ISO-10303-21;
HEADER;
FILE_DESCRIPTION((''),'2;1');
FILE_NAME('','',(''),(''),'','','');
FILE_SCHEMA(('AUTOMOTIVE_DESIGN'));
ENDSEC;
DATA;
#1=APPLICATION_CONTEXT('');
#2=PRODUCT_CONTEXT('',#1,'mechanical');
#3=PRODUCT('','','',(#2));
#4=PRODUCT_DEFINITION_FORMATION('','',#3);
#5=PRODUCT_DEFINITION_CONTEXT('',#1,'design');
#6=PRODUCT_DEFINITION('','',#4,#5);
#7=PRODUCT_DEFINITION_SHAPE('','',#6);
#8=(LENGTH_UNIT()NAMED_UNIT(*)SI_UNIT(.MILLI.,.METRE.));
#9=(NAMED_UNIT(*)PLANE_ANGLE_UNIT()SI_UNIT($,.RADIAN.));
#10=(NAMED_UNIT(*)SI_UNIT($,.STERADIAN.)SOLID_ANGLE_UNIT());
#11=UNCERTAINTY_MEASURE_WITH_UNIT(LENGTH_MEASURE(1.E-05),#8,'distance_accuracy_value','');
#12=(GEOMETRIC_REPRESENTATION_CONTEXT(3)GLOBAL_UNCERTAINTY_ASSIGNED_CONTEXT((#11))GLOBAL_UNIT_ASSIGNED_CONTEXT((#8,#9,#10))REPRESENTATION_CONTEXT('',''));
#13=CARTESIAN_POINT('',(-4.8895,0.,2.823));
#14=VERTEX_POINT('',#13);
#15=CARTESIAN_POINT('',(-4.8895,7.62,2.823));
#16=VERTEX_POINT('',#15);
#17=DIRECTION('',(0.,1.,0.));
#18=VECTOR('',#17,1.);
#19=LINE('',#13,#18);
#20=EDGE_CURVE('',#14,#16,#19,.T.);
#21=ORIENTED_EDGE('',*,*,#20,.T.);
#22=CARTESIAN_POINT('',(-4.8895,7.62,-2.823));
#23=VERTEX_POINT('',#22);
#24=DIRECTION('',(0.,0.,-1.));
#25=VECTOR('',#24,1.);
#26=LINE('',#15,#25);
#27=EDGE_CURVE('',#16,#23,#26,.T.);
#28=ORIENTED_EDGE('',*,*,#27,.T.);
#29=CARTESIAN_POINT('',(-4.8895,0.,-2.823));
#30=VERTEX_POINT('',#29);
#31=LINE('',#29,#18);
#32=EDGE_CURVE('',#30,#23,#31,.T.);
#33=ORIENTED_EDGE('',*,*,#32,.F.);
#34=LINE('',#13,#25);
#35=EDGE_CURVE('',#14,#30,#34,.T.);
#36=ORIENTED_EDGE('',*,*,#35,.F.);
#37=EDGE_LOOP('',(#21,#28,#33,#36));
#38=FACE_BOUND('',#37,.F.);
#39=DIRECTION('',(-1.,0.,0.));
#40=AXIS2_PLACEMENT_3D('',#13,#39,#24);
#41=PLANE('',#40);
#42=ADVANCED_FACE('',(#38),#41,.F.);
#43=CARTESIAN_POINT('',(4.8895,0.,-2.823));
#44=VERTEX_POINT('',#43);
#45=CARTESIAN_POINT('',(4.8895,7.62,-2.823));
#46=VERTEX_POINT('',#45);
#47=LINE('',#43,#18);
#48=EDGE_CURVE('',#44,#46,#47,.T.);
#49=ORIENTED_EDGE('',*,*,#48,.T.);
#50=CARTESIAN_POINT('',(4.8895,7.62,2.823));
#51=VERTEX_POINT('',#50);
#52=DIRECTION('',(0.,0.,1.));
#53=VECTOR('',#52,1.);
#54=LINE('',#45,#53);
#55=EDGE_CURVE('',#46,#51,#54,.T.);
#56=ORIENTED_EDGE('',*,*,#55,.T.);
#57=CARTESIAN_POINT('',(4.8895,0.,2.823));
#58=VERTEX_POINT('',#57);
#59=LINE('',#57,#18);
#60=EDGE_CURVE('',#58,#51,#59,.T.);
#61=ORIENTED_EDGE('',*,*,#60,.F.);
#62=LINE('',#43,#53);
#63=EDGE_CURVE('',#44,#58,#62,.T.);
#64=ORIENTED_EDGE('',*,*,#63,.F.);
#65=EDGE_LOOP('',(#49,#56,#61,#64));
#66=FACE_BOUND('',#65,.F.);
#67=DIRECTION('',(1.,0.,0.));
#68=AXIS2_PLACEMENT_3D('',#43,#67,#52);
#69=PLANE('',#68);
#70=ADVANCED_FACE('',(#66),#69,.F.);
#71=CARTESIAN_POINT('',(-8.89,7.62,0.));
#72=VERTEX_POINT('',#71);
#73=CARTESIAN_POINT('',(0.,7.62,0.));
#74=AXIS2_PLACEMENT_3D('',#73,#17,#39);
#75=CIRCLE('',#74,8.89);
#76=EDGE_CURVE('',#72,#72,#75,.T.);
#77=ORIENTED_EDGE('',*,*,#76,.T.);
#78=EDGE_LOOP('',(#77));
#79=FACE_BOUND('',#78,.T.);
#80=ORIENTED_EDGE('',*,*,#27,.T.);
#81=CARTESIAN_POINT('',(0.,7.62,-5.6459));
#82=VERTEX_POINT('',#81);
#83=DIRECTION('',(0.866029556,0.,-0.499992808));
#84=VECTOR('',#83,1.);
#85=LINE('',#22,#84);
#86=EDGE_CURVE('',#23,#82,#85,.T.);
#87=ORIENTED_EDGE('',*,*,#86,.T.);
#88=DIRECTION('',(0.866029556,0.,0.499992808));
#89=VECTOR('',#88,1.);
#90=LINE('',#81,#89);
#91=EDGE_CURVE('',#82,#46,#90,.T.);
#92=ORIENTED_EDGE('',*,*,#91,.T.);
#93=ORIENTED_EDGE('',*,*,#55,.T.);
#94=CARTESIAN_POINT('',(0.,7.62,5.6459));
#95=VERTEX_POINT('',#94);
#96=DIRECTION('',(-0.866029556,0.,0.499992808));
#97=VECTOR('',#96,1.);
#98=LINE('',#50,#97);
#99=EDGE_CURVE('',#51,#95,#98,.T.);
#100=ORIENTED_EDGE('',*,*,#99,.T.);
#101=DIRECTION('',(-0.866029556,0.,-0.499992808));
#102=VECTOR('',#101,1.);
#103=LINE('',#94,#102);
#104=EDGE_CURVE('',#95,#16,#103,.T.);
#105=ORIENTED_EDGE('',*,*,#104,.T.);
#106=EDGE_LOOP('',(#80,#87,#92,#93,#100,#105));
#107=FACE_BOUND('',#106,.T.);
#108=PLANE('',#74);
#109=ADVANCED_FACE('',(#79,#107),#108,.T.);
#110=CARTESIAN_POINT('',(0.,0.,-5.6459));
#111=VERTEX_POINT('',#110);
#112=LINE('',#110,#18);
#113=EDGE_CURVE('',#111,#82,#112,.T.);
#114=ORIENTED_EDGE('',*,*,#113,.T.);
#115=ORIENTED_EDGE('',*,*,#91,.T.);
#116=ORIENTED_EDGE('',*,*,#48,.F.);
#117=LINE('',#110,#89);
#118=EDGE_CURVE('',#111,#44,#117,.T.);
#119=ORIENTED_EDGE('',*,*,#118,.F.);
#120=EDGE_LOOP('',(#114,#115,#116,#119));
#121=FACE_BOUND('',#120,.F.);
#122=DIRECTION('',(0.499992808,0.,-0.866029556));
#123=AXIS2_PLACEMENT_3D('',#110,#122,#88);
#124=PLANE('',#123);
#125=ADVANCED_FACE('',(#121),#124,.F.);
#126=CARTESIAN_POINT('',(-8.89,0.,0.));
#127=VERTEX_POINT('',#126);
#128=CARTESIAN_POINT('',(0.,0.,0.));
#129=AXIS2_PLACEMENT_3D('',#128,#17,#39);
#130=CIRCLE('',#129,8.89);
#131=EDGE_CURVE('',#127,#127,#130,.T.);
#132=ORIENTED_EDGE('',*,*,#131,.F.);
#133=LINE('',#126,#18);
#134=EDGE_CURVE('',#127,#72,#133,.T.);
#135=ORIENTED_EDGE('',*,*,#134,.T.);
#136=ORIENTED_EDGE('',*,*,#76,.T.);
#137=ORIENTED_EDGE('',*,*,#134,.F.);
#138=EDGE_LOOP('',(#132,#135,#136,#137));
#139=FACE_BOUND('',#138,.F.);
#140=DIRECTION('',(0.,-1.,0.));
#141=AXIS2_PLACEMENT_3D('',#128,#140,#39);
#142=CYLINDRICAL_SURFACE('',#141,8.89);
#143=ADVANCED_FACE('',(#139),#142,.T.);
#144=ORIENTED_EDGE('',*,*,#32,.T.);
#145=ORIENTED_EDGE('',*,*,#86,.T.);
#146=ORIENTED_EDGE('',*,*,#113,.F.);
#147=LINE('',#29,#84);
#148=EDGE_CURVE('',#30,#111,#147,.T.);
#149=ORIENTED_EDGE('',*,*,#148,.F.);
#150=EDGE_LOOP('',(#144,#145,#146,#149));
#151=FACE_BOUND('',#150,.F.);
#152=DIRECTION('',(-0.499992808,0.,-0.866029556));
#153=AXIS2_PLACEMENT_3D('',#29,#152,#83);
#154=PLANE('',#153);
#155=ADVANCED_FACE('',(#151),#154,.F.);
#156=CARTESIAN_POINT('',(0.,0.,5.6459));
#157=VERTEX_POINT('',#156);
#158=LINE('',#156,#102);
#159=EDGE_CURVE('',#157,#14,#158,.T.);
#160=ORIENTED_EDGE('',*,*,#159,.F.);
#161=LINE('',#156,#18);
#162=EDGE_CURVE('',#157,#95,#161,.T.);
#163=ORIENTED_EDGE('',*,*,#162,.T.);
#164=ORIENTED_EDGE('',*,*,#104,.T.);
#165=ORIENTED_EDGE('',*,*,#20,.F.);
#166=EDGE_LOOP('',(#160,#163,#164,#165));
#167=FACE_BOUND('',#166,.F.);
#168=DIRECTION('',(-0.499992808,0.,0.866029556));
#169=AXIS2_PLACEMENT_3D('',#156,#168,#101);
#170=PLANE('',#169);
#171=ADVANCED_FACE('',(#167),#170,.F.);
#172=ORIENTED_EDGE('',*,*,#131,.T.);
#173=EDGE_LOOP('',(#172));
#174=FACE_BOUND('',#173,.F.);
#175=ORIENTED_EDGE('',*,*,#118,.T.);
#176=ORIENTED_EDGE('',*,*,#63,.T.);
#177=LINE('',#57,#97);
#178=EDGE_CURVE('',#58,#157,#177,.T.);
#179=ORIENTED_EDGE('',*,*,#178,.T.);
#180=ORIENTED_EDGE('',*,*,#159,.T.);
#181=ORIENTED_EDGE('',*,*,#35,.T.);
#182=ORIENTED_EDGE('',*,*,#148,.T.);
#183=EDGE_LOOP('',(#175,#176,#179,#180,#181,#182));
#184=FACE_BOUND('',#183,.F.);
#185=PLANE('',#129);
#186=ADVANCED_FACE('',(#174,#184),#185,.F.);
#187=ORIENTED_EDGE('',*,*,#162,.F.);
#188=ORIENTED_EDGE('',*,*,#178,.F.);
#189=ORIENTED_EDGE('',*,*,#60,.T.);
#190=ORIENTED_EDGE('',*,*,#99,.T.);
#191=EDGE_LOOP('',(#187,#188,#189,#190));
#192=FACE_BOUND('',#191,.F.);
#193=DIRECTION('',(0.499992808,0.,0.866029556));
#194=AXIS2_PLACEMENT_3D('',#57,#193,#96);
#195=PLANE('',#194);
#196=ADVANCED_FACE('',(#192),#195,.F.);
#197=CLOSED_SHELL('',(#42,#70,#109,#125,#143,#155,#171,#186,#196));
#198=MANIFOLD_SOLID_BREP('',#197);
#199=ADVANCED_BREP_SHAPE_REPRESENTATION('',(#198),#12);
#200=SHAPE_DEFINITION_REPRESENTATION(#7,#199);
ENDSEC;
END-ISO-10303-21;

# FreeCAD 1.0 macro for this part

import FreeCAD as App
import Part
import Sketcher
Q = App.Units.Quantity

doc = App.newDocument("Part")
params = doc.addObject("Spreadsheet::Sheet", "Params")
for row, (alias, value) in enumerate([
    ("sketch1_diameter", "0.7 in"),
    ("pad1_length", "0.3 in"),
], start=1):
    params.set(f"A{row}", alias)
    params.set(f"B{row}", "=" + value)
    params.setAlias(f"B{row}", alias)

body = doc.addObject("PartDesign::Body", "Body")

# Sketch on XZ plane
sketch1 = body.newObject("Sketcher::SketchObject", "Sketch")
sketch1.AttachmentSupport = (doc.getObject("XZ_Plane"), [""])
sketch1.MapMode = "FlatFace"
sketch1.addGeometry([
    Part.Circle(App.Vector(0, 0, 0), App.Vector(0, 0, 1), 9),  # 0
    Part.LineSegment(App.Vector(-5, 3, 0), App.Vector(-5, -3, 0)),  # 1
    Part.LineSegment(App.Vector(-5, -3, 0), App.Vector(0, -6, 0)),  # 2
    Part.LineSegment(App.Vector(0, -6, 0), App.Vector(5, -3, 0)),  # 3
    Part.LineSegment(App.Vector(5, -3, 0), App.Vector(5, 3, 0)),  # 4
    Part.LineSegment(App.Vector(5, 3, 0), App.Vector(0, 6, 0)),  # 5
    Part.LineSegment(App.Vector(0, 6, 0), App.Vector(-5, 3, 0)),  # 6
], False)
sketch1.addConstraint([
    Sketcher.Constraint("Coincident", 1, 2, 2, 1),
    Sketcher.Constraint("Coincident", 2, 2, 3, 1),
    Sketcher.Constraint("Coincident", 3, 2, 4, 1),
    Sketcher.Constraint("Coincident", 4, 2, 5, 1),
    Sketcher.Constraint("Coincident", 5, 2, 6, 1),
    Sketcher.Constraint("Coincident", 6, 2, 1, 1),
    Sketcher.Constraint("Vertical", 1),
    Sketcher.Constraint("Vertical", 4),
    Sketcher.Constraint("Coincident", 0, 3, -1, 1),
    Sketcher.Constraint("Symmetric", 1, 2, 4, 2, -1, 1),
    Sketcher.Constraint("Symmetric", 2, 2, 5, 2, -1, 1),
    Sketcher.Constraint("PointOnObject", 2, 2, -2),
    Sketcher.Constraint("Parallel", 3, 6),
    Sketcher.Constraint("Horizontal", 1, 2, 3, 2),
    Sketcher.Constraint("Diameter", 0, Q("0.7 in")),
    Sketcher.Constraint("Angle", 2, Q("-29.9995 deg")),
    Sketcher.Constraint("DistanceX", 1, 2, 3, 2, Q("0.385 in")),
    Sketcher.Constraint("DistanceY", 1, 2, 1, 1, Q("5.646 mm")),
])
sketch1.setExpression("Constraints[14]", "Params.sketch1_diameter")
pad1 = body.newObject("PartDesign::Pad", "Pad")
pad1.Profile = sketch1
pad1.setExpression("Length", "Params.pad1_length")
pad1.Reversed = True

doc.recompute()
